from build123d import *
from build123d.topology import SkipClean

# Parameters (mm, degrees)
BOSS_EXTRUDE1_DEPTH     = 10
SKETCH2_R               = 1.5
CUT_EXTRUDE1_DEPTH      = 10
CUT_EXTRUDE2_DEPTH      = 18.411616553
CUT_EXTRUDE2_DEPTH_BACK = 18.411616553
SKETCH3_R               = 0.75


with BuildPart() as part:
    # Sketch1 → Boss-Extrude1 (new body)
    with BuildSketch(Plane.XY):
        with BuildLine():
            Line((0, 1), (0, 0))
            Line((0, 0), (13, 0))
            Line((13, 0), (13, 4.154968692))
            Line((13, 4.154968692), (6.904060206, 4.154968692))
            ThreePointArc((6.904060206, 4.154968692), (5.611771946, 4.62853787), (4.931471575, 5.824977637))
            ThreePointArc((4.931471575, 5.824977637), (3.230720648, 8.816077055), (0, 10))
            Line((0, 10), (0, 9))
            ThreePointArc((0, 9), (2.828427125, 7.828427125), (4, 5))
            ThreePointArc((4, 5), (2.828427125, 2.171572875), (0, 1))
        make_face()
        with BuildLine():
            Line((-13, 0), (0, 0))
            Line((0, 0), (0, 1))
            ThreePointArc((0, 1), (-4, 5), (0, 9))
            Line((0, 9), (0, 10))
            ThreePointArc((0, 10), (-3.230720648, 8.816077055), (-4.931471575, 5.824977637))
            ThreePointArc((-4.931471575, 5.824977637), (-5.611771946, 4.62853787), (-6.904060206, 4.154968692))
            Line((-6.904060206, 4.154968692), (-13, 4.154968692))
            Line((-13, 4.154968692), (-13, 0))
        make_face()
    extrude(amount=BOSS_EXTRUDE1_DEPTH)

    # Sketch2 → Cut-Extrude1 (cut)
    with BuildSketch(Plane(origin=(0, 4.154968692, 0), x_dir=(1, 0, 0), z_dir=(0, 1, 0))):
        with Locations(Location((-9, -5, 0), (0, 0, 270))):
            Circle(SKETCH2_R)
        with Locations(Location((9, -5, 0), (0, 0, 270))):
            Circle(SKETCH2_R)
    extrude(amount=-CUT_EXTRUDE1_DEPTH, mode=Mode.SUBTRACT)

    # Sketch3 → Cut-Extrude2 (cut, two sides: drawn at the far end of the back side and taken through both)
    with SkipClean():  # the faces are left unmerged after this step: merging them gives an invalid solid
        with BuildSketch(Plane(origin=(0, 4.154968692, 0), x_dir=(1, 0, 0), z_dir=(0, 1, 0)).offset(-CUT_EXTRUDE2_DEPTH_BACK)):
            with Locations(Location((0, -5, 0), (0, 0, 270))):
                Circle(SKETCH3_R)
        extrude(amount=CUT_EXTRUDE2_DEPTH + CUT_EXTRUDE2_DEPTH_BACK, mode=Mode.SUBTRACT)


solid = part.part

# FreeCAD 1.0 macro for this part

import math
import FreeCAD as App
import Part
import Sketcher
from FreeCAD import Vector
Q = App.Units.Quantity

doc = App.newDocument("Part")
params = doc.addObject("Spreadsheet::Sheet", "Params")
for row, (alias, value) in enumerate([
    ("sketch1_radius", "2 mm"),
    ("sketch1_radius2", "5 mm"),
    ("sketch1_radius3", "4 mm"),
    ("sketch1_width", "26 mm"),
    ("pad1_length", "10 mm"),
    ("sketch2_diameter", "3 mm"),
    ("pocket1_length", "10 mm"),
    ("sketch3_diameter", "1.5 mm"),
], start=1):
    params.set(f"A{row}", alias)
    params.set(f"B{row}", "=" + value)
    params.setAlias(f"B{row}", alias)

body = doc.addObject("PartDesign::Body", "Body")

sketch1 = doc.addObject("Sketcher::SketchObject", "Sketch")
body.addObject(sketch1)
sketch1.AttachmentSupport = (doc.XY_Plane, [""])
sketch1.MapMode = "FlatFace"
sketch1.addGeometry([
    Part.LineSegment(Vector(13, 0, 0), Vector(13, 4.2, 0)),
    Part.LineSegment(Vector(13, 4.2, 0), Vector(6.9, 4.2, 0)),
    Part.ArcOfCircle(Part.Circle(Vector(6.9, 6.2, 0), Vector(0, 0, 1), 2), math.radians(-171), math.radians(-90)),
    Part.ArcOfCircle(Part.Circle(Vector(0, 5, 0), Vector(0, 0, 1), 5), math.radians(9), math.radians(90)),
    Part.ArcOfCircle(Part.Circle(Vector(0, 5, 0), Vector(0, 0, 1), 5), math.radians(90), math.radians(171)),
    Part.ArcOfCircle(Part.Circle(Vector(-6.9, 6.2, 0), Vector(0, 0, 1), 2), math.radians(-90), math.radians(-9)),
    Part.LineSegment(Vector(-6.9, 4.2, 0), Vector(-13, 4.2, 0)),
    Part.LineSegment(Vector(-13, 4.2, 0), Vector(-13, 0, 0)),
    Part.LineSegment(Vector(-13, 0, 0), Vector(13, 0, 0)),
    Part.ArcOfCircle(Part.Circle(Vector(0, 5, 0), Vector(0, 0, 1), 4), math.radians(0), math.radians(90)),
    Part.ArcOfCircle(Part.Circle(Vector(0, 5, 0), Vector(0, 0, 1), 4), math.radians(-90), math.radians(0)),
    Part.ArcOfCircle(Part.Circle(Vector(0, 5, 0), Vector(0, 0, 1), 4), math.radians(90), math.radians(270)),
], False)
sketch1.addConstraint([
    Sketcher.Constraint("Coincident", 0, 2, 1, 1),
    Sketcher.Constraint("Tangent", 1, 2, 2, 2),
    Sketcher.Constraint("Tangent", 2, 1, 3, 1),
    Sketcher.Constraint("Tangent", 3, 2, 4, 1),
    Sketcher.Constraint("Tangent", 4, 2, 5, 2),
    Sketcher.Constraint("Tangent", 5, 1, 6, 1),
    Sketcher.Constraint("Coincident", 6, 2, 7, 1),
    Sketcher.Constraint("Coincident", 7, 2, 8, 1),
    Sketcher.Constraint("Coincident", 8, 2, 0, 1),
    Sketcher.Constraint("Tangent", 9, 1, 10, 2),
    Sketcher.Constraint("Tangent", 10, 1, 11, 2),
    Sketcher.Constraint("Tangent", 11, 1, 9, 2),
    Sketcher.Constraint("Vertical", 0),
    Sketcher.Constraint("Horizontal", 1),
    Sketcher.Constraint("Horizontal", 6),
    Sketcher.Constraint("Vertical", 7),
    Sketcher.Constraint("Horizontal", 8),
    Sketcher.Constraint("Coincident", 9, 3, 3, 3),
    Sketcher.Constraint("Equal", 3, 4),
    Sketcher.Constraint("Equal", 2, 5),
    Sketcher.Constraint("Symmetric", 7, 2, 8, 2, -1, 1),
    Sketcher.Constraint("Symmetric", 2, 3, 5, 3, -2),
    Sketcher.Constraint("PointOnObject", 3, 2, -2),
    Sketcher.Constraint("PointOnObject", 10, 1, -2),
    Sketcher.Constraint("PointOnObject", 11, 1, -2),
    Sketcher.Constraint("Horizontal", 11, 3, 9, 1),
    Sketcher.Constraint("Radius", 2, Q("2 mm")),
    Sketcher.Constraint("Radius", 3, Q("5 mm")),
    Sketcher.Constraint("Radius", 9, Q("4 mm")),
    Sketcher.Constraint("DistanceX", 8, 1, 8, 2, Q("26 mm")),
    Sketcher.Constraint("DistanceY", -1, 1, 3, 3, Q("5 mm")),
    Sketcher.Constraint("DistanceX", 1, 2, 1, 1, Q("6.09594 mm")),
])
sketch1.setExpression("Constraints[26]", "Params.sketch1_radius")
sketch1.setExpression("Constraints[27]", "Params.sketch1_radius2")
sketch1.setExpression("Constraints[28]", "Params.sketch1_radius3")
sketch1.setExpression("Constraints[29]", "Params.sketch1_width")
pad1 = doc.addObject("PartDesign::Pad", "Pad")
body.addObject(pad1)
pad1.Profile = sketch1
pad1.setExpression("Length", "Params.pad1_length")

sketch2 = doc.addObject("Sketcher::SketchObject", "Sketch001")
body.addObject(sketch2)
sketch2.AttachmentSupport = (doc.XZ_Plane, [""])
sketch2.MapMode = "FlatFace"
sketch2.AttachmentOffset = App.Placement(Vector(0, 0, -4.154969), App.Rotation())
sketch2.addGeometry([
    Part.Circle(Vector(-9, 5, 0), Vector(0, 0, 1), 1.5),
    Part.Circle(Vector(9, 5, 0), Vector(0, 0, 1), 1.5),
], False)
sketch2.addConstraint([
    Sketcher.Constraint("Equal", 0, 1),
    Sketcher.Constraint("Symmetric", 0, 3, 1, 3, -2),
    Sketcher.Constraint("Diameter", 0, Q("3 mm")),
    Sketcher.Constraint("DistanceX", 0, 3, -1, 1, Q("9 mm")),
    Sketcher.Constraint("DistanceY", -1, 1, 0, 3, Q("5 mm")),
])
sketch2.setExpression("Constraints[2]", "Params.sketch2_diameter")
pocket1 = doc.addObject("PartDesign::Pocket", "Pocket")
body.addObject(pocket1)
pocket1.Profile = sketch2
pocket1.setExpression("Length", "Params.pocket1_length")
pocket1.Reversed = True

sketch3 = doc.addObject("Sketcher::SketchObject", "Sketch002")
body.addObject(sketch3)
sketch3.AttachmentSupport = (doc.XZ_Plane, [""])
sketch3.MapMode = "FlatFace"
sketch3.AttachmentOffset = App.Placement(Vector(0, 0, -4.154969), App.Rotation())
sketch3.addGeometry(Part.Circle(Vector(0, 5, 0), Vector(0, 0, 1), 0.8), False)
sketch3.addConstraint([
    Sketcher.Constraint("PointOnObject", 0, 3, -2),
    Sketcher.Constraint("Diameter", 0, Q("1.5 mm")),
    Sketcher.Constraint("DistanceY", -1, 1, 0, 3, Q("5 mm")),
])
sketch3.setExpression("Constraints[1]", "Params.sketch3_diameter")
pocket2 = doc.addObject("PartDesign::Pocket", "Pocket001")
body.addObject(pocket2)
pocket2.Profile = sketch3
pocket2.Type = "ThroughAll"
pocket2.Midplane = True

doc.recompute()
